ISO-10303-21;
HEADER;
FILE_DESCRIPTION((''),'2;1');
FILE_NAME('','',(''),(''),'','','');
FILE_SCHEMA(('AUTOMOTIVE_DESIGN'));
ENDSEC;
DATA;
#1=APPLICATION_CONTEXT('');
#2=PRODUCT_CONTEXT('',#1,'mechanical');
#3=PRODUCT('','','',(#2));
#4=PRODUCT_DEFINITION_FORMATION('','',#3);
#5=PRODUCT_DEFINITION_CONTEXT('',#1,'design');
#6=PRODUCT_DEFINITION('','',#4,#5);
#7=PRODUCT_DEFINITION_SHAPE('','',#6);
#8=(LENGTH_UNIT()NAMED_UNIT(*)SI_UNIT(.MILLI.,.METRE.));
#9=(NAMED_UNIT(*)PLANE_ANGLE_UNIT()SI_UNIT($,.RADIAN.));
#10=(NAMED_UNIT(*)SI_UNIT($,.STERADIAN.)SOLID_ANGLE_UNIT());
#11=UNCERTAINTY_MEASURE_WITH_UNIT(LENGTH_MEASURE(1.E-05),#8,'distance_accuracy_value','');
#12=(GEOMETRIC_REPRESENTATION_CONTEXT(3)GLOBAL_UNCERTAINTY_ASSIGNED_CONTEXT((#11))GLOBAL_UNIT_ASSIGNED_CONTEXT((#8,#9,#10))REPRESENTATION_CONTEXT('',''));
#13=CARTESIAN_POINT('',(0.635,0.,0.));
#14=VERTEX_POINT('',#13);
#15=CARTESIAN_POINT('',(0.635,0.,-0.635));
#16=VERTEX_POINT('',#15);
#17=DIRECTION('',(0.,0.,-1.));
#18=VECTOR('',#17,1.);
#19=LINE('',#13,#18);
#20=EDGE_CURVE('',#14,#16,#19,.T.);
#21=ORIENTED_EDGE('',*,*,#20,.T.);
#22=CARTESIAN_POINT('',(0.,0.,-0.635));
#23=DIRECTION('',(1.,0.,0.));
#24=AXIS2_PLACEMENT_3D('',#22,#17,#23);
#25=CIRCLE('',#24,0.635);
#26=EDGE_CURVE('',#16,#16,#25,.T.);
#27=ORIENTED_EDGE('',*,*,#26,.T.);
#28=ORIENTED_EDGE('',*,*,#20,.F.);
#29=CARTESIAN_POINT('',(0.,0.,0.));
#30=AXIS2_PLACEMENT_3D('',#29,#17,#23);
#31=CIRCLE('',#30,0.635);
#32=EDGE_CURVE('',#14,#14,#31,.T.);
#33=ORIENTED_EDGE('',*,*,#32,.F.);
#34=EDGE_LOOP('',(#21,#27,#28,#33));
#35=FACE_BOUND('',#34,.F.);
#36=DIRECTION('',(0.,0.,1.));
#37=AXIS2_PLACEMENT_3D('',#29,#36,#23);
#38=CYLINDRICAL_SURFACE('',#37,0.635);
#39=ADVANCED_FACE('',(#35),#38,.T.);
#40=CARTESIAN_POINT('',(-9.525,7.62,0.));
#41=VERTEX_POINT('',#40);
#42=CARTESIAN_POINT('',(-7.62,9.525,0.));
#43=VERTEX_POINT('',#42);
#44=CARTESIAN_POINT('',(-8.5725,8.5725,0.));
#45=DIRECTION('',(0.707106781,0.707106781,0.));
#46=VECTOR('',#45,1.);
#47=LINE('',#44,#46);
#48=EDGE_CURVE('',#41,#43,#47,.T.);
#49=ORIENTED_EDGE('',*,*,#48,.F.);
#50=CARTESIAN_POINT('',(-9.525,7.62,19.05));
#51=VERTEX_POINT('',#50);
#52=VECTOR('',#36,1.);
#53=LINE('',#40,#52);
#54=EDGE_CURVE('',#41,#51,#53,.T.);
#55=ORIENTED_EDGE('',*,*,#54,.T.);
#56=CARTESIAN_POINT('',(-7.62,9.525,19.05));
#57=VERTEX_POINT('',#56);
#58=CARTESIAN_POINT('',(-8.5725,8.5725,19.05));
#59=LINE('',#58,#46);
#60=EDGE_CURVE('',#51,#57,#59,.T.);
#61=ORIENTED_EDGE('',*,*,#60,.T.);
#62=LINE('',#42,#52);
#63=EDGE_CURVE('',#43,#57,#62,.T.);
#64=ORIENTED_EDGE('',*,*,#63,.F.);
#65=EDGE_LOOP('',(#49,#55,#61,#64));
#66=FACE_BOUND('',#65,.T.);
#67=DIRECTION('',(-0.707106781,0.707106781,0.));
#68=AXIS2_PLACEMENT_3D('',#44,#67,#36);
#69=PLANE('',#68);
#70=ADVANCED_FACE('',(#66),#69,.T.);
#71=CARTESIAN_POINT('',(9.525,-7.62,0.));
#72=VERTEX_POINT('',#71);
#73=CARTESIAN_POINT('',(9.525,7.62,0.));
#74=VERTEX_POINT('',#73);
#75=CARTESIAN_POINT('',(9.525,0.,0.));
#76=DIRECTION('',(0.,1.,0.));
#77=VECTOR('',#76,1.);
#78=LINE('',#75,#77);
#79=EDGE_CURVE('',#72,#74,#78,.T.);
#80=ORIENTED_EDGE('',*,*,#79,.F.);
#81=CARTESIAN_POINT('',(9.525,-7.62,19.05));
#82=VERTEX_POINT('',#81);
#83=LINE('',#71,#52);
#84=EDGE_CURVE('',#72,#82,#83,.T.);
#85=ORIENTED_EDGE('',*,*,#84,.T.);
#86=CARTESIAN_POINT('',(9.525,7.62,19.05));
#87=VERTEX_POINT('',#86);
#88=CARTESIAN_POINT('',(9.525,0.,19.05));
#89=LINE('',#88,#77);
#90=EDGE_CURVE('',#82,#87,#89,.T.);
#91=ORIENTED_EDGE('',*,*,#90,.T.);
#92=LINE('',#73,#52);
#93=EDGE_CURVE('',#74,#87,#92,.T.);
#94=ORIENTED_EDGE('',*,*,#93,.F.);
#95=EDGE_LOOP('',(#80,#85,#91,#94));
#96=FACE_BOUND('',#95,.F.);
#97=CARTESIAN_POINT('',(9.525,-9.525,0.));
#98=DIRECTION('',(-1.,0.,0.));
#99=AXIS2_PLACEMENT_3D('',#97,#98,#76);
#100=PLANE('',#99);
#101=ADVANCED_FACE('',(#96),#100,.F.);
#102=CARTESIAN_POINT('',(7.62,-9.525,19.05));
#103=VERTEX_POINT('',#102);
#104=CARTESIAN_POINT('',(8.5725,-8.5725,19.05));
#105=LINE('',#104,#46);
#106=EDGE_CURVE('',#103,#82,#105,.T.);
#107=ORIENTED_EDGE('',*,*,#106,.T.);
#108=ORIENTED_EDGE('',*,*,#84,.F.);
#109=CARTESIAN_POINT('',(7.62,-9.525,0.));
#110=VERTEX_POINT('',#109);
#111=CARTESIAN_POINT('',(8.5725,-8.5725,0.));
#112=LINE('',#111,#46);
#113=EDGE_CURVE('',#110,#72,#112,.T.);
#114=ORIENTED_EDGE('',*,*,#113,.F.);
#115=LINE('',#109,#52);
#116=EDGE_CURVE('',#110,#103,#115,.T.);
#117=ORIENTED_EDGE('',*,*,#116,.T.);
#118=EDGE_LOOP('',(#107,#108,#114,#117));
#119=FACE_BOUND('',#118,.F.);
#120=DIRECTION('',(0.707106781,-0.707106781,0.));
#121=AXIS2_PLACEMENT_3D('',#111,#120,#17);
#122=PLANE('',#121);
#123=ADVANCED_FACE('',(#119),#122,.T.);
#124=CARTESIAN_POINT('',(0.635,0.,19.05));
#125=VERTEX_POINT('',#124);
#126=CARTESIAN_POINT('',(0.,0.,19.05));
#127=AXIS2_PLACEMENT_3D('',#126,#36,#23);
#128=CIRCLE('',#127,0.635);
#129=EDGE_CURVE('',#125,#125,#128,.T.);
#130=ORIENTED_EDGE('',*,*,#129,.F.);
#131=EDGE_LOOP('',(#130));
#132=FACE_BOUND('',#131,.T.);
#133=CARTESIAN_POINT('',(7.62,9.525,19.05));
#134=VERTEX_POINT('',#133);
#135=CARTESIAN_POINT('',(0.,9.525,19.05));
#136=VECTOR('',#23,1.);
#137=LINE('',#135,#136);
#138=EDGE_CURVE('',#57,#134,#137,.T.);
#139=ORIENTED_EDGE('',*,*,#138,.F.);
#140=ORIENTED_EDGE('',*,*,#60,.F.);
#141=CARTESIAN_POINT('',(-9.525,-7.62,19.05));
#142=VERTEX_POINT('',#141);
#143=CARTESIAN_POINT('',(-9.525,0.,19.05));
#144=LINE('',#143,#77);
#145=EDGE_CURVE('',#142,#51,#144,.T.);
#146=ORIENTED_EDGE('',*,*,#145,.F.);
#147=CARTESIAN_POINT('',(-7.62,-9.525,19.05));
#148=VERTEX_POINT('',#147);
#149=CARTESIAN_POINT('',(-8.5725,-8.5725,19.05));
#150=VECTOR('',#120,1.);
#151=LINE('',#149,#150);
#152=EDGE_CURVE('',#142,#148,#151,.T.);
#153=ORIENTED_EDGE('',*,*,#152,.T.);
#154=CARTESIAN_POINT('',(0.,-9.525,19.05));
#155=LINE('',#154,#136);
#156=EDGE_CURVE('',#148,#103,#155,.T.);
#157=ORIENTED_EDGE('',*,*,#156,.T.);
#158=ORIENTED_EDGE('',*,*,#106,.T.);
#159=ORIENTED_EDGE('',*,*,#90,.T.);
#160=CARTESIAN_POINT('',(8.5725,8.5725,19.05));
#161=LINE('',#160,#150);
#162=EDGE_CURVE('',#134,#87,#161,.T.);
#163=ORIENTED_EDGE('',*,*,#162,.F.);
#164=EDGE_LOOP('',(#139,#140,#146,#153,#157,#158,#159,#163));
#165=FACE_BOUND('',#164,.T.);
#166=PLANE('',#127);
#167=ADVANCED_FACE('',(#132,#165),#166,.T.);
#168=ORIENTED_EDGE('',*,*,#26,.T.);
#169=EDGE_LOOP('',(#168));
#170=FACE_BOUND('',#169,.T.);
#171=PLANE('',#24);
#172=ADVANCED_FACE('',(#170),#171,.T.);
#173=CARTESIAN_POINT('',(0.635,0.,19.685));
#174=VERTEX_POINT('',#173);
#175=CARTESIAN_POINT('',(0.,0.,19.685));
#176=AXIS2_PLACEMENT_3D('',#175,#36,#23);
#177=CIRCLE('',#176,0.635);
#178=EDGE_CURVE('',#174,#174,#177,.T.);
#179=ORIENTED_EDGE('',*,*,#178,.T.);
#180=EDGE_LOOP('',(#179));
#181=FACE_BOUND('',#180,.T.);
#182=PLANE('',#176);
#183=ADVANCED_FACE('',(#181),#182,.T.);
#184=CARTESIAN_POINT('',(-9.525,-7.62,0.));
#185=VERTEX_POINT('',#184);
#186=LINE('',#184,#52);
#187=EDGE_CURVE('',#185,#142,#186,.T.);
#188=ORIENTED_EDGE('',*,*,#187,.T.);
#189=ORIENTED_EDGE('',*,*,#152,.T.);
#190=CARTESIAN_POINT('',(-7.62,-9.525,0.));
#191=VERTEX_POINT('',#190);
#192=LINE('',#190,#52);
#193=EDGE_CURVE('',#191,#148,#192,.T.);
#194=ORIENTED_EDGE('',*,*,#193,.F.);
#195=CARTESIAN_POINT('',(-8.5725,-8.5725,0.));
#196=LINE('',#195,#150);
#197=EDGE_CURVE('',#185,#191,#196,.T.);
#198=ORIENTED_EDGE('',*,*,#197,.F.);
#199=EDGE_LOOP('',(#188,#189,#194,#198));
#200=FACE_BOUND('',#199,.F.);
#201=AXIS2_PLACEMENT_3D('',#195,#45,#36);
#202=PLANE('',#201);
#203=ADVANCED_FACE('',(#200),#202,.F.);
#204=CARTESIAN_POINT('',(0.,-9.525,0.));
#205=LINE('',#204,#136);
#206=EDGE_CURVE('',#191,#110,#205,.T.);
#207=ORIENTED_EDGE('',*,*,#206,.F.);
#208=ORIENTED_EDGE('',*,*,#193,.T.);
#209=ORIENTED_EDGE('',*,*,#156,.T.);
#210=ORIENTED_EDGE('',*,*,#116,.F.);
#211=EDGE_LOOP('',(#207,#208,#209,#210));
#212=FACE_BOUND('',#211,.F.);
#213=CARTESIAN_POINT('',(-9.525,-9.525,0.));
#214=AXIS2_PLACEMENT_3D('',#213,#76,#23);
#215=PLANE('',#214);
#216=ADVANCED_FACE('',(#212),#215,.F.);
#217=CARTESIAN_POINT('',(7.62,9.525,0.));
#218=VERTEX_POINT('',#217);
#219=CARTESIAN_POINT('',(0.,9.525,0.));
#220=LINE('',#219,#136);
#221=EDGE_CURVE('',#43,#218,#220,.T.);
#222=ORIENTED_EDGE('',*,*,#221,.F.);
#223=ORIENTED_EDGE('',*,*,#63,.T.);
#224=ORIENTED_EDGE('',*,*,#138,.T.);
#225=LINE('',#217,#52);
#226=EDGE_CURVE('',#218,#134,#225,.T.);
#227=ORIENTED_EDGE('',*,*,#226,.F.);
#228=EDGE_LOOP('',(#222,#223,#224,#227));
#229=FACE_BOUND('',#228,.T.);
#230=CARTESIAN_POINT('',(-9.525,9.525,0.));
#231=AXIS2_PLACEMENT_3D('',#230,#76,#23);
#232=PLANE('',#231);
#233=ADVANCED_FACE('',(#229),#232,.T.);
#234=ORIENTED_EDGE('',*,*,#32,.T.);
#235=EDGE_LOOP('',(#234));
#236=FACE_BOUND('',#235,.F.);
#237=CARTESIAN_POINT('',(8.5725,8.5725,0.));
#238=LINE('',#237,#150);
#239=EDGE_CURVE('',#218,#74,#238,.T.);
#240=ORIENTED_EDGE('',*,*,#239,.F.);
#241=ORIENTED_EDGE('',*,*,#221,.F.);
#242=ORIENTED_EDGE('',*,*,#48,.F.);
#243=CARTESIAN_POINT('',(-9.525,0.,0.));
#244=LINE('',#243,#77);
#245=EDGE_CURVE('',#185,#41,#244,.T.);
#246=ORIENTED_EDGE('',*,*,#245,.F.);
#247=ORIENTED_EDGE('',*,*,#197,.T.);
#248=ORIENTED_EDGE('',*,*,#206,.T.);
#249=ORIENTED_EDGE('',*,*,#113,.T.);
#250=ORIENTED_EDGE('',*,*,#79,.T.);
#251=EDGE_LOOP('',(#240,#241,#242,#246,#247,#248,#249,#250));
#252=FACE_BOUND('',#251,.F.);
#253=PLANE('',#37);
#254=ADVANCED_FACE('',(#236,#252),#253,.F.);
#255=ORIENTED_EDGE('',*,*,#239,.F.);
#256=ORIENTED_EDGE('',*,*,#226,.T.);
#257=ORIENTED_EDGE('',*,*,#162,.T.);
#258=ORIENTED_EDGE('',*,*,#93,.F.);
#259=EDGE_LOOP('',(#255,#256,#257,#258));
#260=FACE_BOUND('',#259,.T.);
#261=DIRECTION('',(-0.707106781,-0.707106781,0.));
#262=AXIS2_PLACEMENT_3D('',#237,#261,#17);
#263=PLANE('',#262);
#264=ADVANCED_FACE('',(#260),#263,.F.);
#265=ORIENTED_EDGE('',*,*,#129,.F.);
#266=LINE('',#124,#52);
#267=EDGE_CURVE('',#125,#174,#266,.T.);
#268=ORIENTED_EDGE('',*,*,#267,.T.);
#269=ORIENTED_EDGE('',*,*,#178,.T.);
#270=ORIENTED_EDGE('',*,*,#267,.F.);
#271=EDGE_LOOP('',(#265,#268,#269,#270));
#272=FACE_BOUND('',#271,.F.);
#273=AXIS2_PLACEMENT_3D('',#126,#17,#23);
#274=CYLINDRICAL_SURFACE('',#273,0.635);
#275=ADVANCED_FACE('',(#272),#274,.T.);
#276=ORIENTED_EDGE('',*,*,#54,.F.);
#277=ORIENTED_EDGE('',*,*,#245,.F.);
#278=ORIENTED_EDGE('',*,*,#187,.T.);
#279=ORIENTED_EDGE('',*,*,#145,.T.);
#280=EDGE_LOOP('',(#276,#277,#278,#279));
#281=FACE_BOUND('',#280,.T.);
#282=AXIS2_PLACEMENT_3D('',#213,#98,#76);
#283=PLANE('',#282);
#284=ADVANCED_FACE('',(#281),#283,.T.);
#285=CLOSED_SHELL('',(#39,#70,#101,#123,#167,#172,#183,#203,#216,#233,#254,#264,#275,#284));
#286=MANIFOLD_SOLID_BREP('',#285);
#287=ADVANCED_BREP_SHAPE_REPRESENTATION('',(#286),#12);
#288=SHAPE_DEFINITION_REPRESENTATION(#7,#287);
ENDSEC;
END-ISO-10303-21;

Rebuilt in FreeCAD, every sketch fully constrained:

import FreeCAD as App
import Part
import Sketcher
from FreeCAD import Vector
Q = App.Units.Quantity


def edges_at(feature, points):
    """Names of the edges that pass closest to the given points."""
    edges = feature.Shape.Edges
    near = lambda p: min(range(len(edges)), key=lambda i: edges[i].distToShape(Part.Vertex(*p))[0])
    return sorted({f"Edge{near(p) + 1}" for p in points})

doc = App.newDocument("Part")
body = doc.addObject("PartDesign::Body", "Body")

sketch1 = body.newObject("Sketcher::SketchObject", "Sketch")
sketch1.AttachmentSupport = (doc.getObject("XY_Plane"), [""])
sketch1.MapMode = "FlatFace"
sketch1.addGeometry([
    Part.LineSegment(Vector(-10, 10, 0), Vector(-10, -10, 0)),
    Part.LineSegment(Vector(-10, -10, 0), Vector(10, -10, 0)),
    Part.LineSegment(Vector(10, -10, 0), Vector(10, 10, 0)),
    Part.LineSegment(Vector(10, 10, 0), Vector(-10, 10, 0)),
], False)
sketch1.addConstraint([
    Sketcher.Constraint("Coincident", 0, 2, 1, 1),
    Sketcher.Constraint("Coincident", 1, 2, 2, 1),
    Sketcher.Constraint("Coincident", 2, 2, 3, 1),
    Sketcher.Constraint("Coincident", 3, 2, 0, 1),
    Sketcher.Constraint("Vertical", 0),
    Sketcher.Constraint("Horizontal", 1),
    Sketcher.Constraint("Vertical", 2),
    Sketcher.Constraint("Horizontal", 3),
    Sketcher.Constraint("Symmetric", 0, 2, 2, 2, -1, 1),
    Sketcher.Constraint("Equal", 3, 0),
    Sketcher.Constraint("DistanceX", 1, 1, 1, 2, Q("0.75 in")),
])
pad1 = body.newObject("PartDesign::Pad", "Pad")
pad1.Profile = sketch1
pad1.Length = Q("0.75 in")

sketch2 = body.newObject("Sketcher::SketchObject", "Sketch001")
sketch2.AttachmentSupport = (doc.getObject("XY_Plane"), [""])
sketch2.MapMode = "FlatFace"
sketch2.AttachmentOffset = App.Placement(Vector(0, 0, 0.75 * 25.4), App.Rotation())
sketch2.addGeometry(Part.Circle(Vector(0, 0, 0), Vector(0, 0, 1), 0.6), False)
sketch2.addConstraint([
    Sketcher.Constraint("Coincident", 0, 3, -1, 1),
    Sketcher.Constraint("Diameter", 0, Q("0.05 in")),
])
pad2 = body.newObject("PartDesign::Pad", "Pad001")
pad2.Profile = sketch2
pad2.Length = Q("0.025 in")

sketch3 = body.newObject("Sketcher::SketchObject", "Sketch002")
sketch3.AttachmentSupport = (doc.getObject("XY_Plane"), [""])
sketch3.MapMode = "FlatFace"
sketch3.addGeometry(Part.Circle(Vector(0, 0, 0), Vector(0, 0, 1), 0.6), False)
sketch3.addConstraint([
    Sketcher.Constraint("Coincident", 0, 3, -1, 1),
    Sketcher.Constraint("Diameter", 0, Q("0.05 in")),
])
pad3 = body.newObject("PartDesign::Pad", "Pad002")
pad3.Profile = sketch3
pad3.Length = Q("0.025 in")
pad3.Reversed = True
doc.recompute()

chamfer = body.newObject("PartDesign::Chamfer", "Chamfer")
chamfer.Base = (pad3, edges_at(pad3, [
    (-9.525, -9.525, 9.525),
    (9.525, -9.525, 9.525),
    (9.525, 9.525, 9.525),
    (-9.525, 9.525, 9.525),
]))
chamfer.Size = Q("0.075 in")

doc.recompute()
